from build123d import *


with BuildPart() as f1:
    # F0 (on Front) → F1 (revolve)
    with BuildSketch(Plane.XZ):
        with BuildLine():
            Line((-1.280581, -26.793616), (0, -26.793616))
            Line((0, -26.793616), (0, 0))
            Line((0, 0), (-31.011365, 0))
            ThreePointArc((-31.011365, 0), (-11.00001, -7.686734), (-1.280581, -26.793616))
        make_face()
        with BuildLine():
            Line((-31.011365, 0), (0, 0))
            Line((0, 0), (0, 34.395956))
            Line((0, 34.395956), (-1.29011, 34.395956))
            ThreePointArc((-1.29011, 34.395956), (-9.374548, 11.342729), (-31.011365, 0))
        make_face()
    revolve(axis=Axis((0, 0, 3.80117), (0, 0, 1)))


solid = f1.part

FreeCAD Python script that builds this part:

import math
import FreeCAD as App
import Part
import Sketcher
from FreeCAD import Vector

doc = App.newDocument("Part")
body = doc.addObject("PartDesign::Body", "Body")

sketch1 = doc.addObject("Sketcher::SketchObject", "Sketch")
body.addObject(sketch1)
sketch1.AttachmentSupport = (doc.XZ_Plane, [""])
sketch1.MapMode = "FlatFace"
sketch1.addGeometry(Part.LineSegment(Vector(-1.280581, -26.793616, 0), Vector(0, -26.793616, 0)), False)
sketch1.addGeometry(Part.LineSegment(Vector(0, -26.793616, 0), Vector(0, 34.395956, 0)), False)
sketch1.addGeometry(Part.LineSegment(Vector(0, 34.395956, 0), Vector(-1.29011, 34.395956, 0)), False)
sketch1.addGeometry(Part.ArcOfCircle(Part.Circle(Vector(-34.586887, 33.128499, 0), Vector(0, 0, 1), 33.320891), math.radians(-83.839976), math.radians(2.179938)), False)
sketch1.addGeometry(Part.ArcOfCircle(Part.Circle(Vector(-31.011365, -29.891773, 0), Vector(0, 0, 1), 29.891773), math.radians(5.949152), math.radians(89.999999)), False)
sketch1.addConstraint(Sketcher.Constraint("Coincident", 0, 2, 1, 1))
sketch1.addConstraint(Sketcher.Constraint("Coincident", 1, 2, 2, 1))
sketch1.addConstraint(Sketcher.Constraint("Coincident", 2, 2, 3, 2))
sketch1.addConstraint(Sketcher.Constraint("Coincident", 3, 1, 4, 2))
sketch1.addConstraint(Sketcher.Constraint("Coincident", 4, 1, 0, 1))
sketch1.addConstraint(Sketcher.Constraint("Horizontal", 0))
sketch1.addConstraint(Sketcher.Constraint("Vertical", 1))
sketch1.addConstraint(Sketcher.Constraint("Horizontal", 2))
sketch1.addConstraint(Sketcher.Constraint("PointOnObject", 0, 2, -2))
sketch1.addConstraint(Sketcher.Constraint("PointOnObject", 3, 1, -1))
sketch1.addConstraint(Sketcher.Constraint("Radius", 3, 33.320891))
sketch1.addConstraint(Sketcher.Constraint("Radius", 4, 29.891773))
sketch1.addConstraint(Sketcher.Constraint("DistanceX", 0, 1, 0, 2, 1.280581))
sketch1.addConstraint(Sketcher.Constraint("DistanceX", 2, 2, 2, 1, 1.29011))
sketch1.addConstraint(Sketcher.Constraint("DistanceY", 1, 1, 1, 2, 61.189572))
sketch1.addConstraint(Sketcher.Constraint("DistanceY", -1, 1, 3, 3, 33.128499))
sketch1.addConstraint(Sketcher.Constraint("DistanceX", 3, 3, 4, 3, 3.575521))
revolution = doc.addObject("PartDesign::Revolution", "Revolution")
body.addObject(revolution)
revolution.Profile = sketch1
revolution.ReferenceAxis = (sketch1, ["V_Axis"])
revolution.Angle = 360

doc.recompute()
